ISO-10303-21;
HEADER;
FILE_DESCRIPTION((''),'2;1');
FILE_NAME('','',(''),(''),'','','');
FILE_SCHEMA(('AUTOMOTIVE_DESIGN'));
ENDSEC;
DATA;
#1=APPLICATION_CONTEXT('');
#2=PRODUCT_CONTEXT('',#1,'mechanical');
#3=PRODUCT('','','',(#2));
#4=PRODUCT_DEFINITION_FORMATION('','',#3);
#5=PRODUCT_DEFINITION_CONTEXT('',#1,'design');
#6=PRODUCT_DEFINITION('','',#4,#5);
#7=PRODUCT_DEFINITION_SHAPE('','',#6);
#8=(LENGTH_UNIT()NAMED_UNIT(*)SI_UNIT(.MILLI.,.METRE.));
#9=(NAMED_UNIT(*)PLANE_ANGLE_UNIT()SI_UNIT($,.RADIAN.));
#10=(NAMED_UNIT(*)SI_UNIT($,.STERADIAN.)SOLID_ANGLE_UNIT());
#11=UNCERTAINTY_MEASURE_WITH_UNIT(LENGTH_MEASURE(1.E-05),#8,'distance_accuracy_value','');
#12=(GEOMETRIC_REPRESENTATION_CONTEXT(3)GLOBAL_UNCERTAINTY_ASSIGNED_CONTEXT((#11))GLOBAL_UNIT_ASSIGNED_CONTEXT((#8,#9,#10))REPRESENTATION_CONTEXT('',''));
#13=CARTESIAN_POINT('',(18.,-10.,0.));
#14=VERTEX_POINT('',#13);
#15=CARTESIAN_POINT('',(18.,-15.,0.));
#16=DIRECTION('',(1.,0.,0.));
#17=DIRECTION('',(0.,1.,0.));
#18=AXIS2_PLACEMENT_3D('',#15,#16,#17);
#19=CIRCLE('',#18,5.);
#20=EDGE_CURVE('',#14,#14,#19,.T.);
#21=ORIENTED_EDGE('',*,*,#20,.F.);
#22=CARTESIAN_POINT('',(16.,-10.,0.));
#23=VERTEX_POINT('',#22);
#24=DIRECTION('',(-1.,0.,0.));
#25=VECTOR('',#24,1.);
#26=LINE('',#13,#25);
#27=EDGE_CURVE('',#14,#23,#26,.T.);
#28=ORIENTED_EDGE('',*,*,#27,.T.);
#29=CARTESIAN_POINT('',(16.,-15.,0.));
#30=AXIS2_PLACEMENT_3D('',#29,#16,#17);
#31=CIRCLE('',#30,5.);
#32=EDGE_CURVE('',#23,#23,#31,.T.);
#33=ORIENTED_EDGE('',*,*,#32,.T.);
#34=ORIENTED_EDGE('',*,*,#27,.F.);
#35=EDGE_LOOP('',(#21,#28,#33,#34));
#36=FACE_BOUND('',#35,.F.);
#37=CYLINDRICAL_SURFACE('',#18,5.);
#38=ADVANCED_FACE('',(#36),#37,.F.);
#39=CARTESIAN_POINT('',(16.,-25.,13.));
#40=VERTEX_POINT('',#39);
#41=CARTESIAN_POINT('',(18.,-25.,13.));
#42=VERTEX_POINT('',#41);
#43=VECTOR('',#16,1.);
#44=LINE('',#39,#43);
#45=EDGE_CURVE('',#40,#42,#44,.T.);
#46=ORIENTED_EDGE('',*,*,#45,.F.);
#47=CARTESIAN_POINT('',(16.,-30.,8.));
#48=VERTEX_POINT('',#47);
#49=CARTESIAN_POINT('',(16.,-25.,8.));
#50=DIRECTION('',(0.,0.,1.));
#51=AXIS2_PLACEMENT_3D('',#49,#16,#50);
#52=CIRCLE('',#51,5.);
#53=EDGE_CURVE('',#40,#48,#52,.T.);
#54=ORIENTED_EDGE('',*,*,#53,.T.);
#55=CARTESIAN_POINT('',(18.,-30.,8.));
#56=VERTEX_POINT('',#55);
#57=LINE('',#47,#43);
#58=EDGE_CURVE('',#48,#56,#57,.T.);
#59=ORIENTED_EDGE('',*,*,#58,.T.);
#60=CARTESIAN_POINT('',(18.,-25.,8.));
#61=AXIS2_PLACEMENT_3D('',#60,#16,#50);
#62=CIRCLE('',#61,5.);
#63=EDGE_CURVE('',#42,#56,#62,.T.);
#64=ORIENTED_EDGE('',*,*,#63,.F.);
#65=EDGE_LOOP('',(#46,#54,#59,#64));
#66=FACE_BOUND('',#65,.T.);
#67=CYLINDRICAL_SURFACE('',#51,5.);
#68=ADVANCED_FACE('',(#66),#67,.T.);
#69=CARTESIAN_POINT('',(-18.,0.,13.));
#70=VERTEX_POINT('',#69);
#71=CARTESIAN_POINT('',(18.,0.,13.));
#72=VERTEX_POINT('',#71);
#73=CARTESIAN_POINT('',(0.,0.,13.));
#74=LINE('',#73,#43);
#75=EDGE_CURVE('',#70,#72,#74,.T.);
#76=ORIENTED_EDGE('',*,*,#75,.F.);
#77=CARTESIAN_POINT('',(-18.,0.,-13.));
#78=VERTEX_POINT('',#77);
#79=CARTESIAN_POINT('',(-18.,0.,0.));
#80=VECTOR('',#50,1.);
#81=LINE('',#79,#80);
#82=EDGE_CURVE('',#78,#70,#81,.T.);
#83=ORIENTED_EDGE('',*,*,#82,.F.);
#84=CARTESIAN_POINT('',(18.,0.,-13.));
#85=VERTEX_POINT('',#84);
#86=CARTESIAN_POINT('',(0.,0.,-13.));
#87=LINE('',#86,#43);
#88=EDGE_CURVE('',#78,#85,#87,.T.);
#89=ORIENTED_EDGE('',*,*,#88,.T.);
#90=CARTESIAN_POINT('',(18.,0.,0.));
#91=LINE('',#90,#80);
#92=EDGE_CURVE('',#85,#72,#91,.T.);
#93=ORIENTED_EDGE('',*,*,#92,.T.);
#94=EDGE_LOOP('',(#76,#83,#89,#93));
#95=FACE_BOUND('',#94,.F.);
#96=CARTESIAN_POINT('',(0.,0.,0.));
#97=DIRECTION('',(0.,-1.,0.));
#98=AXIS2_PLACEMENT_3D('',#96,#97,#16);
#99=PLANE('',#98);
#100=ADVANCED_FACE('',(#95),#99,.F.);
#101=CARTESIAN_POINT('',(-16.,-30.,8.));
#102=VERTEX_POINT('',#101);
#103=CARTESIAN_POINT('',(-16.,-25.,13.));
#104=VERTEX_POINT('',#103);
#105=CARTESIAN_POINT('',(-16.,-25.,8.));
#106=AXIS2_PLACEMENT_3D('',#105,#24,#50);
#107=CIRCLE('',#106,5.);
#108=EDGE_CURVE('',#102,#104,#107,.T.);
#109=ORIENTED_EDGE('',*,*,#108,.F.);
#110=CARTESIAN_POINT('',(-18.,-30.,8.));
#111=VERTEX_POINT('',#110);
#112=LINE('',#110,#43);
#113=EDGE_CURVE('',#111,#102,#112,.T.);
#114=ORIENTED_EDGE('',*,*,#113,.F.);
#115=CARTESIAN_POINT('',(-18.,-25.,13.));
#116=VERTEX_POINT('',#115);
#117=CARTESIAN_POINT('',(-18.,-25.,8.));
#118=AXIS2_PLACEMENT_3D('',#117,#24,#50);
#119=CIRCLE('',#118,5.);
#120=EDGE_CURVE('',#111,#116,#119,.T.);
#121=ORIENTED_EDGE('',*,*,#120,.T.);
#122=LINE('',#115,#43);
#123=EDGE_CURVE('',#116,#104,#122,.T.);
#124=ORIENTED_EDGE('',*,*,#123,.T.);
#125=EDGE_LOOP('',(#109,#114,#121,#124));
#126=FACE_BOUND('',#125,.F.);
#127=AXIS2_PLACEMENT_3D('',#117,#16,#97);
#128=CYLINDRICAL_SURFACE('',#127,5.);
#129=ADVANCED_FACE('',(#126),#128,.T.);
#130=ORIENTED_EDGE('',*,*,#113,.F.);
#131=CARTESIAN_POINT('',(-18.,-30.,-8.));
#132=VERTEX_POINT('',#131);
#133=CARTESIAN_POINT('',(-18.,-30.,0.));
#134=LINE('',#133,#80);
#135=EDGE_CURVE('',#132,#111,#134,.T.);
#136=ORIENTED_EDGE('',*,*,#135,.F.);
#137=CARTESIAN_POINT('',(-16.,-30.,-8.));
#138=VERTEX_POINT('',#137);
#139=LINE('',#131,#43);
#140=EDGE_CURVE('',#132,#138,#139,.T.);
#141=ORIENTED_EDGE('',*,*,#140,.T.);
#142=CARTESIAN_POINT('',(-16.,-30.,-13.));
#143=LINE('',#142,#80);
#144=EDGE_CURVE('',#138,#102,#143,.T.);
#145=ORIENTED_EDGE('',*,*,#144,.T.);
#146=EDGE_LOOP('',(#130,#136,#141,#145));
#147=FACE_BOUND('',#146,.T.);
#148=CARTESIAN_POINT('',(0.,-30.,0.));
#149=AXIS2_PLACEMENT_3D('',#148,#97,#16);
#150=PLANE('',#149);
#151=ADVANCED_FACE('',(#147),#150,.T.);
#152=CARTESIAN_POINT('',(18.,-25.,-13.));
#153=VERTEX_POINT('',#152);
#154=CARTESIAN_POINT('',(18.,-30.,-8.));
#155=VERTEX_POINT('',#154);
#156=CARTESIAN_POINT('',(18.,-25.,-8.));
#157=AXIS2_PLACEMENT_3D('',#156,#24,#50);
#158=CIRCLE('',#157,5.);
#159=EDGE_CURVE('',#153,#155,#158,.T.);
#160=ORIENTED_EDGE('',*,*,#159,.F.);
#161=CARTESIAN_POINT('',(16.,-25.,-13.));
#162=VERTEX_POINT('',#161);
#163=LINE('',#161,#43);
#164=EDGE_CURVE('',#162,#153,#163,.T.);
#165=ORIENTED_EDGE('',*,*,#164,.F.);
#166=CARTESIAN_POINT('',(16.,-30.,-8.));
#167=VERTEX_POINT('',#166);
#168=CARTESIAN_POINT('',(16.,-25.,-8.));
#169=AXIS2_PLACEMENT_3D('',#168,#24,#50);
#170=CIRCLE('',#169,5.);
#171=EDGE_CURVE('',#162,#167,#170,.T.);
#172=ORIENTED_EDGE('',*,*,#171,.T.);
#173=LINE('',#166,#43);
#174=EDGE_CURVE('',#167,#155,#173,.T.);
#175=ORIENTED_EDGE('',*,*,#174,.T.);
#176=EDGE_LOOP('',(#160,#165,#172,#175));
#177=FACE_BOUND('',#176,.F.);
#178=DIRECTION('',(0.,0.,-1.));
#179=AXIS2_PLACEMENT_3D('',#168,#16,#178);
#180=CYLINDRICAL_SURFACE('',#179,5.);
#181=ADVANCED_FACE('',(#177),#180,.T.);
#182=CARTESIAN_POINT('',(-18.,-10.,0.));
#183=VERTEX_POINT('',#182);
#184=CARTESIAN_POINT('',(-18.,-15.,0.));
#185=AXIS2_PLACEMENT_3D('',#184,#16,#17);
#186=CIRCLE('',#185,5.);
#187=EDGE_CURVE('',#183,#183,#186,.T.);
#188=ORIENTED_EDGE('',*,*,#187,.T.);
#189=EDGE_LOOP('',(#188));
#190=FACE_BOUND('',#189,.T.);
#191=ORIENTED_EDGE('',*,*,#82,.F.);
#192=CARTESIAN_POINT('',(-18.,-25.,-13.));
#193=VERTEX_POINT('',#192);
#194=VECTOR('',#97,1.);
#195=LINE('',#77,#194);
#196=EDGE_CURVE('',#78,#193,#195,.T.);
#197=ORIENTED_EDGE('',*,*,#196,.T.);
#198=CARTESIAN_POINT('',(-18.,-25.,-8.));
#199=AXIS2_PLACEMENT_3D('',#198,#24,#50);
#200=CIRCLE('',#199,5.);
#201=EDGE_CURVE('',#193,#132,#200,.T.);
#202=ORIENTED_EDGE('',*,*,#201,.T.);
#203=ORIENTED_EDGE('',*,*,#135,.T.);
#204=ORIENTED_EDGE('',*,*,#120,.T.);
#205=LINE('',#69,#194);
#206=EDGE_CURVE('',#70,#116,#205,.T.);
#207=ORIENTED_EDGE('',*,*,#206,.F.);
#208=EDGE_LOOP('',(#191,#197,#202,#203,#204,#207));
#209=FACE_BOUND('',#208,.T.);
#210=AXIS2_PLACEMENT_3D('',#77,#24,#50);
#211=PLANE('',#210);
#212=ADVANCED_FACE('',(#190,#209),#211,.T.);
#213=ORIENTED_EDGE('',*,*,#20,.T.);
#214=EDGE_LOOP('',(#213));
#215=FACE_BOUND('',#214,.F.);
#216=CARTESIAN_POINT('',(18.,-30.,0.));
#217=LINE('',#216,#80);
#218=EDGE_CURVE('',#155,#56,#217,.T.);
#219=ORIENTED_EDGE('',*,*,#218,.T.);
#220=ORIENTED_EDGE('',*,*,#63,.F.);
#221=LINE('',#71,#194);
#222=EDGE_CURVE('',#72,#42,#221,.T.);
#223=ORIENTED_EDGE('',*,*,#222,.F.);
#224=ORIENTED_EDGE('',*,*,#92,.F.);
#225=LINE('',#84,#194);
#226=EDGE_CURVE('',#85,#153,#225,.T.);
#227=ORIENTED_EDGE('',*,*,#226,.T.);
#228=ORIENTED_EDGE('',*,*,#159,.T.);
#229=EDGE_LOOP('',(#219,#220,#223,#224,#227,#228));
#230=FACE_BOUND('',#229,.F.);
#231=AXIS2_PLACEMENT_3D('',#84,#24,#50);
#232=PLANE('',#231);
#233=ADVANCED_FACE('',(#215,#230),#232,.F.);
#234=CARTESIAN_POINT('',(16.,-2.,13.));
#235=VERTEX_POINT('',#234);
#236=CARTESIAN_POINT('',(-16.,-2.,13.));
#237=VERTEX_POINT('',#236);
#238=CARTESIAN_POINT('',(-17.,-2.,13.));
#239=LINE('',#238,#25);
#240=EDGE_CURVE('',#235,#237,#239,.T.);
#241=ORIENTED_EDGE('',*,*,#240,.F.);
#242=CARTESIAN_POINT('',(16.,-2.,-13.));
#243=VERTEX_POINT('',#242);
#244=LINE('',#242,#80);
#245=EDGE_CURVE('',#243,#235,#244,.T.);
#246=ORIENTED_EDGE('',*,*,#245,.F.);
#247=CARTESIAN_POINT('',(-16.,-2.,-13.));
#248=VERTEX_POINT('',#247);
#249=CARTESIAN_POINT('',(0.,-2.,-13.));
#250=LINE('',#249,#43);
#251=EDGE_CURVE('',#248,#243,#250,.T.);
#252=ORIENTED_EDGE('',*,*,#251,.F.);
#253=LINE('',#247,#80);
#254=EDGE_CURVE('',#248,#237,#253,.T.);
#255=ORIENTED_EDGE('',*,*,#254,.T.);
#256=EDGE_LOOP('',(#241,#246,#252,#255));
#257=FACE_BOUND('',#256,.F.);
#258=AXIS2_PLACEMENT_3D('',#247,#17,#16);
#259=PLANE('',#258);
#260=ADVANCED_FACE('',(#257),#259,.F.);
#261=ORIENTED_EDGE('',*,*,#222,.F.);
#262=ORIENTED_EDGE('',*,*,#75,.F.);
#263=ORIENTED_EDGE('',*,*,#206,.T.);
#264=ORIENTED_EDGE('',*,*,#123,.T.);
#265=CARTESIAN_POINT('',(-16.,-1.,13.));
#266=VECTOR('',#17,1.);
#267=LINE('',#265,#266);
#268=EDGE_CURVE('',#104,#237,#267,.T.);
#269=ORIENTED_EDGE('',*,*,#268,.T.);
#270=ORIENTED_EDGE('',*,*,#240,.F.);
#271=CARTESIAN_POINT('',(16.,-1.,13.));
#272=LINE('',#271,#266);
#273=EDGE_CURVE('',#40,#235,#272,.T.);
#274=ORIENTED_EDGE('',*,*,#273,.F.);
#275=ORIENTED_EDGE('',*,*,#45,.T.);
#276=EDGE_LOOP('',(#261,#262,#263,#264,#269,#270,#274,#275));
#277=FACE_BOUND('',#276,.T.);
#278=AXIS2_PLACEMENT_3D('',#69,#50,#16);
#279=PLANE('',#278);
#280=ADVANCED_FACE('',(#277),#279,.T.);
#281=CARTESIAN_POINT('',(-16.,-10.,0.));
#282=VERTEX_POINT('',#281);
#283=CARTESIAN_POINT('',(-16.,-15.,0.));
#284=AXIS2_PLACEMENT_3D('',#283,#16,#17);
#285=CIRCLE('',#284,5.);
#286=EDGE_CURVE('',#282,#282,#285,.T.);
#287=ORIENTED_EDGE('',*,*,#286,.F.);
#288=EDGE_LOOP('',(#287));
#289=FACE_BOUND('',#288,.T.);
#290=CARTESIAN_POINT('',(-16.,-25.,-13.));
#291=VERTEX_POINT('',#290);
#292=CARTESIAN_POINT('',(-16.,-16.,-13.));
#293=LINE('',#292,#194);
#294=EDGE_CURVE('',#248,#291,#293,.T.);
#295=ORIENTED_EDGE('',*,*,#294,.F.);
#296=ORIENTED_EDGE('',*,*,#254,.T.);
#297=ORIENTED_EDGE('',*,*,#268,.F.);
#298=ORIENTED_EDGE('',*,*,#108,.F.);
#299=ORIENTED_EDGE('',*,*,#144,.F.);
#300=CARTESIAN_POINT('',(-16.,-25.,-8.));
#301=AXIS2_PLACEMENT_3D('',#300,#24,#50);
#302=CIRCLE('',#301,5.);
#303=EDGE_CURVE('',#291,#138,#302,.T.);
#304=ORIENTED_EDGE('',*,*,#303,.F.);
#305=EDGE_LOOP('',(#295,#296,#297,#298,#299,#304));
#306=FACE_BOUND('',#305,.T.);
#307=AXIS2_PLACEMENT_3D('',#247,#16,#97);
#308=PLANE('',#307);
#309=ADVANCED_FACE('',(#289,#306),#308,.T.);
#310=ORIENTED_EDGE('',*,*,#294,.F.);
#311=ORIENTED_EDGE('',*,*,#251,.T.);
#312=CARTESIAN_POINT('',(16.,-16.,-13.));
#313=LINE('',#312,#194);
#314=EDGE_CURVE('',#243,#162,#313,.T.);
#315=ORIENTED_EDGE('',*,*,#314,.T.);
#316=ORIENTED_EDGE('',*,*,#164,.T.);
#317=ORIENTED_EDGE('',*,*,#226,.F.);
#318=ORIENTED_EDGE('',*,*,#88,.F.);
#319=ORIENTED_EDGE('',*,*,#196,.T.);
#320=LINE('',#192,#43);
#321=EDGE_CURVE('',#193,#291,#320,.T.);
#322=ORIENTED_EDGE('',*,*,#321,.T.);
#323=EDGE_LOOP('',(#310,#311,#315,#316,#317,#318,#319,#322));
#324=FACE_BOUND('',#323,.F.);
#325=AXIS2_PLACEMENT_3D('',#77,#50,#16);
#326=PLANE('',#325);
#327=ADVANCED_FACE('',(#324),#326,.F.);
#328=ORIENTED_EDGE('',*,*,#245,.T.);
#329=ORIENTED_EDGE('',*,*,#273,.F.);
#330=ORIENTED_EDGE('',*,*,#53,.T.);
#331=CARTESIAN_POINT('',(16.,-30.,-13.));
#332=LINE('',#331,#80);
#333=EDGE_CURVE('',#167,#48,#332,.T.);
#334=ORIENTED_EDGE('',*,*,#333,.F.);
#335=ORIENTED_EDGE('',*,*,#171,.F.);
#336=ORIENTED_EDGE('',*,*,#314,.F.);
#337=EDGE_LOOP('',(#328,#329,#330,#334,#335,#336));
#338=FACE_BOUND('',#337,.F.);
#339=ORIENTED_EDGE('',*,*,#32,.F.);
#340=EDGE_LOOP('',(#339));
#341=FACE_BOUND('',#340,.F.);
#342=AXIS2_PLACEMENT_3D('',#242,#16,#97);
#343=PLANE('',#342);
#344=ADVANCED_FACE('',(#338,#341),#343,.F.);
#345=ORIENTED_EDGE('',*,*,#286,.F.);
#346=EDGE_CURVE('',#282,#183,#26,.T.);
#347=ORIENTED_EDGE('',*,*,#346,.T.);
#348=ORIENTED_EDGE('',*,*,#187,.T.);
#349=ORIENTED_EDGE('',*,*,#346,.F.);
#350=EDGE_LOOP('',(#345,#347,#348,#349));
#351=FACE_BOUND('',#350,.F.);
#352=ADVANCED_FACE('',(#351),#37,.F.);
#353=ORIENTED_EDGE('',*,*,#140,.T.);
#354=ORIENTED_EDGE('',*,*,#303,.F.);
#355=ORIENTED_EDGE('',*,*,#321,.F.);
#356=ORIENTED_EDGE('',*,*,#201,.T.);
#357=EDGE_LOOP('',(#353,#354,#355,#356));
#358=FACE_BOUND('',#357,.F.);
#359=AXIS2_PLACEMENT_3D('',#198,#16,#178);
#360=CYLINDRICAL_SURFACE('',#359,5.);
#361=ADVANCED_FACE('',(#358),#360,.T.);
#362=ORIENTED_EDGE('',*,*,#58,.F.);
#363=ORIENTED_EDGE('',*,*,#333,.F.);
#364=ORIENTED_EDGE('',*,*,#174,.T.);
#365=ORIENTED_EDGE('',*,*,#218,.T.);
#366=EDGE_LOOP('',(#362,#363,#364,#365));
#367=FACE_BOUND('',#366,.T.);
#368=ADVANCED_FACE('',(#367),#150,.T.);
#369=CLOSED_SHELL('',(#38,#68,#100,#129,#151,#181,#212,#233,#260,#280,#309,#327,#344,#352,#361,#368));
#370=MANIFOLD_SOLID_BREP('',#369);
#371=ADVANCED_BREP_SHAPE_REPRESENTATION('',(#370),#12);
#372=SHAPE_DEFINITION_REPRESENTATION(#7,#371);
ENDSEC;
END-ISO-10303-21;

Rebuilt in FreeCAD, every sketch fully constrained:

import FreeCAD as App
import Part
import Sketcher

V = App.Vector
Q = App.Units.Quantity


def edges_at(feature, points):
    """Names of the edges that pass closest to the given points."""
    edges = feature.Shape.Edges
    near = lambda p: min(range(len(edges)), key=lambda i: edges[i].distToShape(Part.Vertex(*p))[0])
    return sorted({f"Edge{near(p) + 1}" for p in points})

doc = App.newDocument("Part")
body = doc.addObject("PartDesign::Body", "Body")

# Sketch on XZ plane
sketch1 = doc.addObject("Sketcher::SketchObject", "Sketch")
body.addObject(sketch1)
sketch1.AttachmentSupport = (doc.XZ_Plane, [""])
sketch1.MapMode = "FlatFace"
sketch1.addGeometry(Part.LineSegment(V(-18, 13, 0), V(-18, -13, 0)), False)
sketch1.addGeometry(Part.LineSegment(V(-18, -13, 0), V(18, -13, 0)), False)
sketch1.addGeometry(Part.LineSegment(V(18, -13, 0), V(18, 13, 0)), False)
sketch1.addGeometry(Part.LineSegment(V(18, 13, 0), V(-18, 13, 0)), False)
sketch1.addConstraint(Sketcher.Constraint("Coincident", 0, 2, 1, 1))
sketch1.addConstraint(Sketcher.Constraint("Coincident", 1, 2, 2, 1))
sketch1.addConstraint(Sketcher.Constraint("Coincident", 2, 2, 3, 1))
sketch1.addConstraint(Sketcher.Constraint("Coincident", 3, 2, 0, 1))
sketch1.addConstraint(Sketcher.Constraint("Vertical", 0))
sketch1.addConstraint(Sketcher.Constraint("Horizontal", 1))
sketch1.addConstraint(Sketcher.Constraint("Vertical", 2))
sketch1.addConstraint(Sketcher.Constraint("Horizontal", 3))
sketch1.addConstraint(Sketcher.Constraint("Symmetric", 0, 2, 2, 2, -1, 1))
sketch1.addConstraint(Sketcher.Constraint("DistanceX", 1, 1, 1, 2, Q("36 mm")))
sketch1.addConstraint(Sketcher.Constraint("DistanceY", 0, 2, 0, 1, Q("26 mm")))
pad1 = doc.addObject("PartDesign::Pad", "Pad")
body.addObject(pad1)
pad1.Profile = sketch1
pad1.Length = 30

# Sketch on XY plane
sketch2 = doc.addObject("Sketcher::SketchObject", "Sketch001")
body.addObject(sketch2)
sketch2.AttachmentSupport = (doc.XY_Plane, [""])
sketch2.MapMode = "FlatFace"
sketch2.AttachmentOffset = App.Placement(V(0, 0, -13), App.Rotation())
sketch2.addGeometry(Part.LineSegment(V(-16, -30, 0), V(-16, -2, 0)), False)
sketch2.addGeometry(Part.LineSegment(V(-16, -2, 0), V(16, -2, 0)), False)
sketch2.addGeometry(Part.LineSegment(V(16, -2, 0), V(16, -30, 0)), False)
sketch2.addGeometry(Part.LineSegment(V(16, -30, 0), V(-16, -30, 0)), False)
sketch2.addConstraint(Sketcher.Constraint("Coincident", 0, 2, 1, 1))
sketch2.addConstraint(Sketcher.Constraint("Coincident", 1, 2, 2, 1))
sketch2.addConstraint(Sketcher.Constraint("Coincident", 2, 2, 3, 1))
sketch2.addConstraint(Sketcher.Constraint("Coincident", 3, 2, 0, 1))
sketch2.addConstraint(Sketcher.Constraint("Vertical", 0))
sketch2.addConstraint(Sketcher.Constraint("Horizontal", 1))
sketch2.addConstraint(Sketcher.Constraint("Vertical", 2))
sketch2.addConstraint(Sketcher.Constraint("Horizontal", 3))
sketch2.addConstraint(Sketcher.Constraint("DistanceX", 1, 1, 1, 2, Q("32 mm")))
sketch2.addConstraint(Sketcher.Constraint("DistanceY", 0, 1, 0, 2, Q("28 mm")))
sketch2.addConstraint(Sketcher.Constraint("DistanceX", 0, 2, -1, 1, Q("16 mm")))
sketch2.addConstraint(Sketcher.Constraint("DistanceY", 0, 2, -1, 1, Q("2 mm")))
pocket1 = doc.addObject("PartDesign::Pocket", "Pocket")
body.addObject(pocket1)
pocket1.Profile = sketch2
pocket1.Length = 36
pocket1.Reversed = True

# Sketch on YZ plane
sketch3 = doc.addObject("Sketcher::SketchObject", "Sketch002")
body.addObject(sketch3)
sketch3.AttachmentSupport = (doc.YZ_Plane, [""])
sketch3.MapMode = "FlatFace"
sketch3.AttachmentOffset = App.Placement(V(0, 0, 18), App.Rotation())
sketch3.addGeometry(Part.Circle(V(-15, 0, 0), V(0, 0, 1), 5), False)
sketch3.addConstraint(Sketcher.Constraint("PointOnObject", 0, 3, -1))
sketch3.addConstraint(Sketcher.Constraint("Diameter", 0, Q("10 mm")))
sketch3.addConstraint(Sketcher.Constraint("DistanceX", 0, 3, -1, 1, Q("15 mm")))
pocket2 = doc.addObject("PartDesign::Pocket", "Pocket001")
body.addObject(pocket2)
pocket2.Profile = sketch3
pocket2.Type = "ThroughAll"
doc.recompute()

fillet = doc.addObject("PartDesign::Fillet", "Fillet")
body.addObject(fillet)
fillet.Base = (pocket2, edges_at(pocket2, [
    (17, -30, -13),
    (-17, -30, -13),
    (17, -30, 13),
    (-17, -30, 13),
]))
fillet.Radius = 5

doc.recompute()
